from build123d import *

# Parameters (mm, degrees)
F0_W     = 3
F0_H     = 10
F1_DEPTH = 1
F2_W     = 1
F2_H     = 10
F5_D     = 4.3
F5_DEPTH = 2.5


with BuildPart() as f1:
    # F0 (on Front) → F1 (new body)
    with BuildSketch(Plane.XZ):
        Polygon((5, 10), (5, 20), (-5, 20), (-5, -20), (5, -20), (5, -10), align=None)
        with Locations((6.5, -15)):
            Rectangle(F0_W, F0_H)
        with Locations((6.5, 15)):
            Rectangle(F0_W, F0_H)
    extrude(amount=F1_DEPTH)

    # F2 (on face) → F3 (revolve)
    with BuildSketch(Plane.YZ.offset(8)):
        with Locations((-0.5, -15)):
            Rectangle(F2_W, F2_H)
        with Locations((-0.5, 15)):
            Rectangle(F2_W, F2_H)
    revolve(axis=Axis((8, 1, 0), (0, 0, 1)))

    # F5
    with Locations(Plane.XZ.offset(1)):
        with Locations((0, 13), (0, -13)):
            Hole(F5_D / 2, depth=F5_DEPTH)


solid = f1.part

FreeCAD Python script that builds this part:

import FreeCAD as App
import Part
import Sketcher
from FreeCAD import Vector


def add_polygon(sketch, points):
    """Adds a closed chain of lines whose ends are joined by coincident constraints."""
    first, n = sketch.GeometryCount, len(points)
    for a, b in zip(points, points[1:] + points[:1]):
        sketch.addGeometry(Part.LineSegment(App.Vector(*a, 0), App.Vector(*b, 0)), False)
    for i in range(n):
        sketch.addConstraint(Sketcher.Constraint("Coincident", first + i, 2, first + (i + 1) % n, 1))

doc = App.newDocument("Part")
body = doc.addObject("PartDesign::Body", "Body")

# Sketch on XZ plane
sketch1 = body.newObject("Sketcher::SketchObject", "Sketch")
sketch1.AttachmentSupport = (doc.getObject("XZ_Plane"), [""])
sketch1.MapMode = "FlatFace"
add_polygon(sketch1, [(-5, 20), (-5, -20), (8, -20), (8, -10), (5, -10), (5, 10), (8, 10), (8, 20)])  # lines 0-7
sketch1.addConstraint(Sketcher.Constraint("Vertical", 0))
sketch1.addConstraint(Sketcher.Constraint("Horizontal", 1))
sketch1.addConstraint(Sketcher.Constraint("Vertical", 2))
sketch1.addConstraint(Sketcher.Constraint("Horizontal", 3))
sketch1.addConstraint(Sketcher.Constraint("Vertical", 4))
sketch1.addConstraint(Sketcher.Constraint("Horizontal", 5))
sketch1.addConstraint(Sketcher.Constraint("Vertical", 6))
sketch1.addConstraint(Sketcher.Constraint("Horizontal", 7))
sketch1.addConstraint(Sketcher.Constraint("Symmetric", 2, 2, 5, 2, -1))
sketch1.addConstraint(Sketcher.Constraint("Equal", 2, 6))
sketch1.addConstraint(Sketcher.Constraint("DistanceX", 1, 1, 1, 2, 13.0))
sketch1.addConstraint(Sketcher.Constraint("DistanceX", 3, 2, 3, 1, 3.0))
sketch1.addConstraint(Sketcher.Constraint("DistanceY", 0, 2, 0, 1, 40.0))
sketch1.addConstraint(Sketcher.Constraint("DistanceY", 2, 1, 2, 2, 10.0))
sketch1.addConstraint(Sketcher.Constraint("DistanceX", 0, 2, -1, 1, 5.0))
pad1 = body.newObject("PartDesign::Pad", "Pad")
pad1.Profile = sketch1
pad1.Length = 1

# Sketch on YZ plane
sketch2 = body.newObject("Sketcher::SketchObject", "Sketch001")
sketch2.AttachmentSupport = (doc.getObject("YZ_Plane"), [""])
sketch2.MapMode = "FlatFace"
sketch2.AttachmentOffset = App.Placement(Vector(0, 0, 8), App.Rotation())
add_polygon(sketch2, [(-1, -10), (-1, -20), (0, -20), (0, -10)])  # lines 0-3
add_polygon(sketch2, [(-1, 20), (-1, 10), (0, 10), (0, 20)])  # lines 4-7
sketch2.addGeometry(Part.LineSegment(Vector(1, -20, 0), Vector(1, 20, 0)), True)  # axis
sketch2.addConstraint(Sketcher.Constraint("Vertical", 0))
sketch2.addConstraint(Sketcher.Constraint("Horizontal", 1))
sketch2.addConstraint(Sketcher.Constraint("Vertical", 2))
sketch2.addConstraint(Sketcher.Constraint("Horizontal", 3))
sketch2.addConstraint(Sketcher.Constraint("Vertical", 4))
sketch2.addConstraint(Sketcher.Constraint("Horizontal", 5))
sketch2.addConstraint(Sketcher.Constraint("Vertical", 6))
sketch2.addConstraint(Sketcher.Constraint("Horizontal", 7))
sketch2.addConstraint(Sketcher.Constraint("Vertical", 8))
sketch2.addConstraint(Sketcher.Constraint("Symmetric", 2, 2, 5, 2, -1, 1))
sketch2.addConstraint(Sketcher.Constraint("Symmetric", 7, 2, 8, 1, -1, 1))
sketch2.addConstraint(Sketcher.Constraint("Symmetric", 0, 2, 8, 2, -1, 1))
sketch2.addConstraint(Sketcher.Constraint("Symmetric", 1, 2, 6, 2, -1))
sketch2.addConstraint(Sketcher.Constraint("DistanceX", 1, 1, 1, 2, 1.0))
sketch2.addConstraint(Sketcher.Constraint("DistanceY", 0, 2, 0, 1, 10.0))
sketch2.addConstraint(Sketcher.Constraint("DistanceY", 8, 1, 8, 2, 40.0))
revolution = body.newObject("PartDesign::Revolution", "Revolution")
revolution.Profile = sketch2
revolution.ReferenceAxis = (sketch2, ["Axis0"])
revolution.Angle = 360

# Sketch on XZ plane
sketch3 = body.newObject("Sketcher::SketchObject", "Sketch002")
sketch3.AttachmentSupport = (doc.getObject("XZ_Plane"), [""])
sketch3.MapMode = "FlatFace"
sketch3.AttachmentOffset = App.Placement(Vector(0, 0, 1), App.Rotation())
sketch3.addGeometry(Part.Circle(Vector(0, 13, 0), Vector(0, 0, 1), 2.1), False)
sketch3.addGeometry(Part.Circle(Vector(0, -13, 0), Vector(0, 0, 1), 2.1), False)
sketch3.addConstraint(Sketcher.Constraint("Equal", 0, 1))
sketch3.addConstraint(Sketcher.Constraint("Symmetric", 0, 3, 1, 3, -1, 1))
sketch3.addConstraint(Sketcher.Constraint("PointOnObject", 0, 3, -2))
sketch3.addConstraint(Sketcher.Constraint("Diameter", 0, 4.3))
sketch3.addConstraint(Sketcher.Constraint("DistanceY", -1, 1, 0, 3, 13.0))
doc.recompute()
hole = body.newObject("PartDesign::Hole", "Hole")
hole.Profile = sketch3
hole.ThreadType = "None"
hole.Diameter = 4.3
hole.DepthType = "Dimension"
hole.Depth = 2.5
hole.DrillPoint = "Flat"

doc.recompute()
